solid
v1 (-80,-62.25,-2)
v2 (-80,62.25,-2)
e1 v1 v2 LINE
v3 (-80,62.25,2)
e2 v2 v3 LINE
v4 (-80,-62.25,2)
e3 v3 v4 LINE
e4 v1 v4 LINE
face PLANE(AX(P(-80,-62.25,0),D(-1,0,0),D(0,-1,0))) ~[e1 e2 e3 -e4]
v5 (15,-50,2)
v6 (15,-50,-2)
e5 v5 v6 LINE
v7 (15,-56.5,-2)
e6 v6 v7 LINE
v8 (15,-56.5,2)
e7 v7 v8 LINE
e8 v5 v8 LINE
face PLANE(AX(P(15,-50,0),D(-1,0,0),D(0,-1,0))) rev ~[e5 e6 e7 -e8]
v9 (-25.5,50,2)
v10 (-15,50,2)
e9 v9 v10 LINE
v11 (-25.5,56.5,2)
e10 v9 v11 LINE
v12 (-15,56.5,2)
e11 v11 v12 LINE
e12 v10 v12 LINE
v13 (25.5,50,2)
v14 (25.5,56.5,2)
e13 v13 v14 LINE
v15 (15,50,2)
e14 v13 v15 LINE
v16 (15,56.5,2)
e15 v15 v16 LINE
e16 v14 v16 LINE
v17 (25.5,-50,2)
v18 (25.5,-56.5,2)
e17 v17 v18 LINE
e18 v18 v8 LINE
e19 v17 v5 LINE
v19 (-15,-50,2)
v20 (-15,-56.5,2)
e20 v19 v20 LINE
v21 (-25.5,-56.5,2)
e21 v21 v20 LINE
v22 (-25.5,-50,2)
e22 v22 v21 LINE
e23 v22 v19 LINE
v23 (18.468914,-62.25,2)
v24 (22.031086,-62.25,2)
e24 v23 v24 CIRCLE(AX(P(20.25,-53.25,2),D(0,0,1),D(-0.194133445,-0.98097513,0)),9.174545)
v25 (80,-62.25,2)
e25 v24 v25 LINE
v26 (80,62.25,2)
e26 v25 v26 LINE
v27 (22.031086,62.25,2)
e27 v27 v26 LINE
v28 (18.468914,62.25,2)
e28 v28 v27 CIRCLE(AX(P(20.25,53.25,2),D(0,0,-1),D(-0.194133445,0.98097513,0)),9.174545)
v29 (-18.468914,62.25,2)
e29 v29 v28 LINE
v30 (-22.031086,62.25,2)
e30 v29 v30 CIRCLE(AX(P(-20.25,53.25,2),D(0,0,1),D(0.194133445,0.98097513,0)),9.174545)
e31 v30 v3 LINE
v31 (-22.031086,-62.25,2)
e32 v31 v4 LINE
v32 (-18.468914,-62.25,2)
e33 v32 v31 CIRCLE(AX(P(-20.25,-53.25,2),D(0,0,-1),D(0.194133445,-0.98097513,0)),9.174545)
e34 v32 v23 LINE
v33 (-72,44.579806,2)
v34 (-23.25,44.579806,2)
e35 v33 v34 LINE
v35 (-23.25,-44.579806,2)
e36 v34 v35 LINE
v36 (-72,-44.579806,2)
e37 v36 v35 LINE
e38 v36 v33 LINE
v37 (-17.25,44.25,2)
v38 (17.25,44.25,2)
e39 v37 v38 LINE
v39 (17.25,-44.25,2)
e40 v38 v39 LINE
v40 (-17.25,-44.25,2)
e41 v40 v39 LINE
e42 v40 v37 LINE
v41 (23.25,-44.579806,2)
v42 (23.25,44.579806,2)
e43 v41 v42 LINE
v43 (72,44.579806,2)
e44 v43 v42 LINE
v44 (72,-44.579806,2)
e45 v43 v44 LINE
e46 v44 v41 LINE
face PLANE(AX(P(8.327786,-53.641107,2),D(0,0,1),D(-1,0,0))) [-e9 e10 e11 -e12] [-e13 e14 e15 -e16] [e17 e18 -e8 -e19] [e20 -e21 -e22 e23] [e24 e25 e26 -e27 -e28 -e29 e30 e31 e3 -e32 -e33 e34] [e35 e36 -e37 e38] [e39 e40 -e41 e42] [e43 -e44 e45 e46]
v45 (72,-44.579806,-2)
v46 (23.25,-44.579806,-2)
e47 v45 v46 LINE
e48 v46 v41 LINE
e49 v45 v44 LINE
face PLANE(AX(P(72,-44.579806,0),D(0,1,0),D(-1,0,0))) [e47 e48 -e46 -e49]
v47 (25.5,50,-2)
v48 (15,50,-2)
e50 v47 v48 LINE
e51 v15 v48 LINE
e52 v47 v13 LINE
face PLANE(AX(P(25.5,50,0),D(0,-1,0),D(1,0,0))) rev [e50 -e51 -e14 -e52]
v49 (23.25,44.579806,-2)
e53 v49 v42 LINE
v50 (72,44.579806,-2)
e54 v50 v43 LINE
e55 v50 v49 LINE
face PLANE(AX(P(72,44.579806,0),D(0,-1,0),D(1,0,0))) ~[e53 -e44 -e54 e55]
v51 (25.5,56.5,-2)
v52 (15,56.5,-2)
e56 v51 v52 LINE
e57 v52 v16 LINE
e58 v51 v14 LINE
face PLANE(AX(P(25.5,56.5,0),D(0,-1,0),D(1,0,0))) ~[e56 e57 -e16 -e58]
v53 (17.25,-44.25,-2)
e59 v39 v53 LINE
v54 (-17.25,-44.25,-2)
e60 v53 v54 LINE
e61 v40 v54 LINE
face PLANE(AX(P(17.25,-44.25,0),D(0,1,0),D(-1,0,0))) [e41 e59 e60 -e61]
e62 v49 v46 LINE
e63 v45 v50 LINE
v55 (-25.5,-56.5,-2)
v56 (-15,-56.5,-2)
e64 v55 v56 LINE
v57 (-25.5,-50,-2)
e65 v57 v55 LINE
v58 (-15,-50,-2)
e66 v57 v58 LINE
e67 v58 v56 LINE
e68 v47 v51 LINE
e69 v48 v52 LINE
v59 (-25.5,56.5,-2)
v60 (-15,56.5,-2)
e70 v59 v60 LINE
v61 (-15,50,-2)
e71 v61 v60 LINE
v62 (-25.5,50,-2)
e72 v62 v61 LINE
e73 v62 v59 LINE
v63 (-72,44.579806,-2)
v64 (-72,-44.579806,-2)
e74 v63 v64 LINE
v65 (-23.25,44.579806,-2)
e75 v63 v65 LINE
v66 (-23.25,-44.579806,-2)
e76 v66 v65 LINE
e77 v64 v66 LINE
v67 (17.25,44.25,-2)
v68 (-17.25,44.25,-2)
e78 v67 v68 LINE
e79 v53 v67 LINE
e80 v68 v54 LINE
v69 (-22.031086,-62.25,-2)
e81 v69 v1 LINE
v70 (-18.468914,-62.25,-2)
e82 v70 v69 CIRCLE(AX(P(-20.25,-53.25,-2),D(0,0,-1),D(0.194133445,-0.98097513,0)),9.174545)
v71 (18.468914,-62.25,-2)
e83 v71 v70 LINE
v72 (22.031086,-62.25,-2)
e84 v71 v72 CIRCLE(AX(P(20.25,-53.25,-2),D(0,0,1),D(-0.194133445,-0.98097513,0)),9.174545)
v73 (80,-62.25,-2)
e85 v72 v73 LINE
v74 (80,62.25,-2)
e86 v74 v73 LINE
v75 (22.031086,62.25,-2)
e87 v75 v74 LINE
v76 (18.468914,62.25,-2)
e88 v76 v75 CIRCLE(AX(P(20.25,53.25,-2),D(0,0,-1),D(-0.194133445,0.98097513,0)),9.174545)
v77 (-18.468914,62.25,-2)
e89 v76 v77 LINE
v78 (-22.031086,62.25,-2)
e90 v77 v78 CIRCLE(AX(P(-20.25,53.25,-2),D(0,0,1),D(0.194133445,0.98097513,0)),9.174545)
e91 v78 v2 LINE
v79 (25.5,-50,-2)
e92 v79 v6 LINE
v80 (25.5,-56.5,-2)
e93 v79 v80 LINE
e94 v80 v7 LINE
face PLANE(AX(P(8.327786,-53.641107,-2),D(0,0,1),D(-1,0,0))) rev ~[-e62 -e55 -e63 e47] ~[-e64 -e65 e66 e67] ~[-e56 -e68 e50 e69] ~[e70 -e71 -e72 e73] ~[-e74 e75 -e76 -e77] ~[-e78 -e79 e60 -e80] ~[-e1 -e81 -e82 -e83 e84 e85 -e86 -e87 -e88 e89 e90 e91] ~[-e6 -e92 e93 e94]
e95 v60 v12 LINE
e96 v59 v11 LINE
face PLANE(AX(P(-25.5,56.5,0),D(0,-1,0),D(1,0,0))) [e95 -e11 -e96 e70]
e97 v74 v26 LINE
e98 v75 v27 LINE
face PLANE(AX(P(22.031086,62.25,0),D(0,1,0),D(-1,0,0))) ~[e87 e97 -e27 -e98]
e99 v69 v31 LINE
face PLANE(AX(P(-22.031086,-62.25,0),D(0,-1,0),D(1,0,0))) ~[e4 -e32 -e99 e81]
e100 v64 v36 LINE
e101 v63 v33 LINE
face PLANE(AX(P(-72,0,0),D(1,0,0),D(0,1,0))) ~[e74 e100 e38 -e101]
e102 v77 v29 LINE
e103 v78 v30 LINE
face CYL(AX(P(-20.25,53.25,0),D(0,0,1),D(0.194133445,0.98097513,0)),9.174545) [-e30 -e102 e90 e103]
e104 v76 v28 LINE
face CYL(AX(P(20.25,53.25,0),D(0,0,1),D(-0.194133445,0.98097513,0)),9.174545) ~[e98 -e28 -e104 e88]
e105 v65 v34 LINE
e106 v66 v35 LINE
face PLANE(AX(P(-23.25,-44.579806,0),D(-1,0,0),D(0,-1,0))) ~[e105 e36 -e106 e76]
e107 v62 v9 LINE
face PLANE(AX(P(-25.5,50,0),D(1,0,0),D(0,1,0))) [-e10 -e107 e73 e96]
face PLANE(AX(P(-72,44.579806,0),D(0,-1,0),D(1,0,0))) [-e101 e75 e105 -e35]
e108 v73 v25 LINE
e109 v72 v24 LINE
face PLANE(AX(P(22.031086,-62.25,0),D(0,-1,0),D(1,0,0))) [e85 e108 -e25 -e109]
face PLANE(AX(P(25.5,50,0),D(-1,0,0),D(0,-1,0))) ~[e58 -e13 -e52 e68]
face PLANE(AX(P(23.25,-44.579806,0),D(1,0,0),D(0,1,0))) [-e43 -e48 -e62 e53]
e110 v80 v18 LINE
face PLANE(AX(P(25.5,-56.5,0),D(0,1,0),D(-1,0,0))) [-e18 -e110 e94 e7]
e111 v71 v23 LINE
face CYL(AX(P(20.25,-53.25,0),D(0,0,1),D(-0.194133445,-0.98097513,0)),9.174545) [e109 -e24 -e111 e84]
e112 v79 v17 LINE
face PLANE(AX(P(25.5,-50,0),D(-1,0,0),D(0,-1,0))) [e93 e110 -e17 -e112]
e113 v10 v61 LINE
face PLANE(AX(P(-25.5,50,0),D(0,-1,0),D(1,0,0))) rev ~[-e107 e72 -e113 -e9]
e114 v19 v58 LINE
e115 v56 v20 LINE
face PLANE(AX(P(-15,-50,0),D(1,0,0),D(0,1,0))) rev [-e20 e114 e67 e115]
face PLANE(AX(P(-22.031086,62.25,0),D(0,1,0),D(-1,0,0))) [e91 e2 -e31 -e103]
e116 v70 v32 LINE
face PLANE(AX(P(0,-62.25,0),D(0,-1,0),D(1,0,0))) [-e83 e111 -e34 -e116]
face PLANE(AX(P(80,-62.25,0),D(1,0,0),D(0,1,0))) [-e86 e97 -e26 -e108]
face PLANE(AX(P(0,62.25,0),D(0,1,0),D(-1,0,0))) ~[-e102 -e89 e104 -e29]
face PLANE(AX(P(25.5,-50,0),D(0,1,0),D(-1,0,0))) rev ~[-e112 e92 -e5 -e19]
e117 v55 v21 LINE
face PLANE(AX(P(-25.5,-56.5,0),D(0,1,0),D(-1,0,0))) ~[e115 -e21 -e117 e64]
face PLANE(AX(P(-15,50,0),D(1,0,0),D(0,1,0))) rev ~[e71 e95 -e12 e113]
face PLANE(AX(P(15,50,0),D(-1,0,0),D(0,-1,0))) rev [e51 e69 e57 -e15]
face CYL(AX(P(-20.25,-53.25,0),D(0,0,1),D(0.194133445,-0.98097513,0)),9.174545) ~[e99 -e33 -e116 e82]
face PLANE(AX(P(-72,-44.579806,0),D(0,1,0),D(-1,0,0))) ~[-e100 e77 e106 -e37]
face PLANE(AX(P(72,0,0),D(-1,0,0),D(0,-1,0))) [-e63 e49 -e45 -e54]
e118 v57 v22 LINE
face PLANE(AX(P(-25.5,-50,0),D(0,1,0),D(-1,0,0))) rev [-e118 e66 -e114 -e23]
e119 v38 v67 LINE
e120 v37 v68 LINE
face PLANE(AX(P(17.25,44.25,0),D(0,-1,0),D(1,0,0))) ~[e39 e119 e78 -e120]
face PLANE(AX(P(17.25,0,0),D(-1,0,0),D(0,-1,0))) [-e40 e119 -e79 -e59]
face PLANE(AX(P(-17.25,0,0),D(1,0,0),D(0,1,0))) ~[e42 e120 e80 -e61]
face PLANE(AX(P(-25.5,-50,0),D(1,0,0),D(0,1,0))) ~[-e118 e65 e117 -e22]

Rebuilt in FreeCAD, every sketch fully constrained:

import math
import FreeCAD as App
import Part
import Sketcher

V = App.Vector
Q = App.Units.Quantity


def add_polygon(sketch, points):
    """Adds a closed chain of lines whose ends are joined by coincident constraints."""
    first, n = sketch.GeometryCount, len(points)
    for a, b in zip(points, points[1:] + points[:1]):
        sketch.addGeometry(Part.LineSegment(App.Vector(*a, 0), App.Vector(*b, 0)), False)
    for i in range(n):
        sketch.addConstraint(Sketcher.Constraint("Coincident", first + i, 2, first + (i + 1) % n, 1))

doc = App.newDocument("Part")
params = doc.addObject("Spreadsheet::Sheet", "Params")
for row, (alias, value) in enumerate([
    ("sketch1_width", "8 mm"),
    ("sketch1_width2", "6 mm"),
    ("sketch1_height", "18 mm"),
    ("sketch1_width3", "10.5 mm"),
    ("sketch1_height2", "6.5 mm"),
    ("pad1_length", "4 mm"),
], start=1):
    params.set(f"A{row}", alias)
    params.set(f"B{row}", "=" + value)
    params.setAlias(f"B{row}", alias)

body = doc.addObject("PartDesign::Body", "Body")

sketch1 = doc.addObject("Sketcher::SketchObject", "Sketch")
body.addObject(sketch1)
sketch1.AttachmentSupport = (doc.XY_Plane, [""])
sketch1.MapMode = "FlatFace"
sketch1.addGeometry(Part.LineSegment(V(0, 62.25, 0), V(-18.468914, 62.25, 0)), False)
sketch1.addGeometry(Part.ArcOfCircle(Part.Circle(V(-20.25, 53.25, 0), V(0, 0, 1), 9.174545), math.radians(78.805894), math.radians(101.194106)), False)
sketch1.addGeometry(Part.LineSegment(V(-22.031086, 62.25, 0), V(-80, 62.25, 0)), False)
sketch1.addGeometry(Part.LineSegment(V(-80, 62.25, 0), V(-80, 0, 0)), False)
sketch1.addGeometry(Part.LineSegment(V(-80, 0, 0), V(-72, 0, 0)), False)
sketch1.addGeometry(Part.LineSegment(V(-72, 0, 0), V(-72, 44.579806, 0)), False)
sketch1.addGeometry(Part.LineSegment(V(-72, 44.579806, 0), V(-23.25, 44.579806, 0)), False)
sketch1.addGeometry(Part.LineSegment(V(-23.25, 44.579806, 0), V(-23.25, 0, 0)), False)
sketch1.addGeometry(Part.LineSegment(V(-23.25, 0, 0), V(-17.25, 0, 0)), False)
sketch1.addGeometry(Part.LineSegment(V(-17.25, 0, 0), V(-17.25, 44.25, 0)), False)
sketch1.addGeometry(Part.LineSegment(V(-17.25, 44.25, 0), V(0, 44.25, 0)), False)
sketch1.addGeometry(Part.LineSegment(V(0, 44.25, 0), V(0, 62.25, 0)), False)
add_polygon(sketch1, [(-15, 50), (-25.5, 50), (-25.5, 56.5), (-15, 56.5)])
sketch1.addConstraint(Sketcher.Constraint("Coincident", 0, 2, 1, 1))
sketch1.addConstraint(Sketcher.Constraint("Coincident", 1, 2, 2, 1))
sketch1.addConstraint(Sketcher.Constraint("Coincident", 2, 2, 3, 1))
sketch1.addConstraint(Sketcher.Constraint("Coincident", 3, 2, 4, 1))
sketch1.addConstraint(Sketcher.Constraint("Coincident", 4, 2, 5, 1))
sketch1.addConstraint(Sketcher.Constraint("Coincident", 5, 2, 6, 1))
sketch1.addConstraint(Sketcher.Constraint("Coincident", 6, 2, 7, 1))
sketch1.addConstraint(Sketcher.Constraint("Coincident", 7, 2, 8, 1))
sketch1.addConstraint(Sketcher.Constraint("Coincident", 8, 2, 9, 1))
sketch1.addConstraint(Sketcher.Constraint("Coincident", 9, 2, 10, 1))
sketch1.addConstraint(Sketcher.Constraint("Coincident", 10, 2, 11, 1))
sketch1.addConstraint(Sketcher.Constraint("Coincident", 11, 2, 0, 1))
sketch1.addConstraint(Sketcher.Constraint("Horizontal", 0))
sketch1.addConstraint(Sketcher.Constraint("Horizontal", 2))
sketch1.addConstraint(Sketcher.Constraint("Vertical", 3))
sketch1.addConstraint(Sketcher.Constraint("Horizontal", 4))
sketch1.addConstraint(Sketcher.Constraint("Vertical", 5))
sketch1.addConstraint(Sketcher.Constraint("Horizontal", 6))
sketch1.addConstraint(Sketcher.Constraint("Vertical", 7))
sketch1.addConstraint(Sketcher.Constraint("Horizontal", 8))
sketch1.addConstraint(Sketcher.Constraint("Vertical", 9))
sketch1.addConstraint(Sketcher.Constraint("Horizontal", 10))
sketch1.addConstraint(Sketcher.Constraint("Vertical", 11))
sketch1.addConstraint(Sketcher.Constraint("Horizontal", 12))
sketch1.addConstraint(Sketcher.Constraint("Vertical", 13))
sketch1.addConstraint(Sketcher.Constraint("Horizontal", 14))
sketch1.addConstraint(Sketcher.Constraint("Vertical", 15))
sketch1.addConstraint(Sketcher.Constraint("PointOnObject", 3, 2, -1))
sketch1.addConstraint(Sketcher.Constraint("PointOnObject", 7, 2, -1))
sketch1.addConstraint(Sketcher.Constraint("PointOnObject", 10, 2, -2))
sketch1.addConstraint(Sketcher.Constraint("Horizontal", 0, 2, 1, 2))
sketch1.addConstraint(Sketcher.Constraint("DistanceX", 4, 1, 4, 2, Q("8 mm")))
sketch1.addConstraint(Sketcher.Constraint("DistanceX", 8, 1, 8, 2, Q("6 mm")))
sketch1.addConstraint(Sketcher.Constraint("DistanceY", 11, 1, 11, 2, Q("18 mm")))
sketch1.addConstraint(Sketcher.Constraint("DistanceX", 12, 2, 12, 1, Q("10.5 mm")))
sketch1.addConstraint(Sketcher.Constraint("DistanceY", 13, 1, 13, 2, Q("6.5 mm")))
sketch1.addConstraint(Sketcher.Constraint("DistanceX", 2, 2, -1, 1, Q("80 mm")))
sketch1.addConstraint(Sketcher.Constraint("DistanceY", -1, 1, 12, 2, Q("50 mm")))
sketch1.addConstraint(Sketcher.Constraint("DistanceX", 14, 2, -1, 1, Q("15 mm")))
sketch1.addConstraint(Sketcher.Constraint("DistanceY", 1, 3, 0, 2, Q("9 mm")))
sketch1.addConstraint(Sketcher.Constraint("DistanceX", 6, 2, 1, 3, Q("3 mm")))
sketch1.addConstraint(Sketcher.Constraint("DistanceX", 6, 1, 6, 2, Q("48.75 mm")))
sketch1.addConstraint(Sketcher.Constraint("DistanceY", 3, 2, 3, 1, Q("62.25 mm")))
sketch1.addConstraint(Sketcher.Constraint("Radius", 1, Q("9.174545 mm")))
sketch1.addConstraint(Sketcher.Constraint("DistanceY", 5, 1, 5, 2, Q("44.579806 mm")))
sketch1.setExpression("Constraints[35]", "Params.sketch1_width")
sketch1.setExpression("Constraints[36]", "Params.sketch1_width2")
sketch1.setExpression("Constraints[37]", "Params.sketch1_height")
sketch1.setExpression("Constraints[38]", "Params.sketch1_width3")
sketch1.setExpression("Constraints[39]", "Params.sketch1_height2")
pad1 = doc.addObject("PartDesign::Pad", "Pad")
body.addObject(pad1)
pad1.Profile = sketch1
pad1.setExpression("Length", "Params.pad1_length")
pad1.Midplane = True
body2 = doc.addObject("PartDesign::Body", "Body001")
doc.recompute()

body2.BaseFeature = body
doc.recompute()

mirroring = doc.addObject("Part::Mirroring", "Mirroring")
mirroring.Source = body
mirroring.Base = V(0, 53.25, 0)
mirroring.Normal = V(1, 0, 0)
body3 = doc.addObject("PartDesign::Body", "Body002")
body3.BaseFeature = mirroring
boolean = doc.addObject("PartDesign::Boolean", "Boolean")
body2.addObject(boolean)
boolean.Type = "Fuse"
boolean.addObjects([body3])
doc.recompute()
body4 = doc.addObject("PartDesign::Body", "Body003")
doc.recompute()

body4.BaseFeature = body2
doc.recompute()

mirroring2 = doc.addObject("Part::Mirroring", "Mirroring001")
mirroring2.Source = body2
mirroring2.Base = V(-20.25, 0, 0)
mirroring2.Normal = V(0, -1, 0)
body5 = doc.addObject("PartDesign::Body", "Body004")
body5.BaseFeature = mirroring2
boolean2 = doc.addObject("PartDesign::Boolean", "Boolean001")
body4.addObject(boolean2)
boolean2.Type = "Fuse"
boolean2.addObjects([body5])
doc.recompute()
mirroring.Visibility = False
mirroring2.Visibility = False

doc.recompute()
